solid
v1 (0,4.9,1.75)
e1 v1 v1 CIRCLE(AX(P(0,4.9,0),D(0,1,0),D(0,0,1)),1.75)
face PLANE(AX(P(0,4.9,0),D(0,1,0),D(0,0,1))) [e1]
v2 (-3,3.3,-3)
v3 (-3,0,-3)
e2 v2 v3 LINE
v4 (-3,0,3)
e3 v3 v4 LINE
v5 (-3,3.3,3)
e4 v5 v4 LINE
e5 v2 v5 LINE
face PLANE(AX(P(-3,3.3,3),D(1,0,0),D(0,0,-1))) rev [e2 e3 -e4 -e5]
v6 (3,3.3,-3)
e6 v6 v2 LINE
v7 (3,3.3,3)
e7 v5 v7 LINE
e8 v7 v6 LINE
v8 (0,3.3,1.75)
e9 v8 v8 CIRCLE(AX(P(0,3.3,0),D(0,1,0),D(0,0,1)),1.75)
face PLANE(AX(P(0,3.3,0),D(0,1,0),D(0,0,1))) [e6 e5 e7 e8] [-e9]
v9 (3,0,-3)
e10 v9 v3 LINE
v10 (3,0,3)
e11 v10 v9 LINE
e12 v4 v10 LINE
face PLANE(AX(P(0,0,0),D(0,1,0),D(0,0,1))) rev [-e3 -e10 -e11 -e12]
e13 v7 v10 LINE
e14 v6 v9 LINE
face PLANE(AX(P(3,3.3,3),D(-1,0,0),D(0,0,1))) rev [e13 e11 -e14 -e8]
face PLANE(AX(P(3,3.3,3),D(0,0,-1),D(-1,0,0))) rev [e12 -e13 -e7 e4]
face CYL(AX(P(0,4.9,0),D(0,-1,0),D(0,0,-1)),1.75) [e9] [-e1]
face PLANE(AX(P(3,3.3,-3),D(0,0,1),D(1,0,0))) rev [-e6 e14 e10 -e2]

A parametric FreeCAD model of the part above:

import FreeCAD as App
import Part
import Sketcher
from FreeCAD import Vector
Q = App.Units.Quantity

doc = App.newDocument("Part")
body = doc.addObject("PartDesign::Body", "Body")

# Sketch on XZ plane
sketch1 = body.newObject("Sketcher::SketchObject", "Sketch")
sketch1.AttachmentSupport = (doc.getObject("XZ_Plane"), [""])
sketch1.MapMode = "FlatFace"
sketch1.addGeometry([
    Part.LineSegment(Vector(-3, -3, 0), Vector(-3, 3, 0)),
    Part.LineSegment(Vector(-3, 3, 0), Vector(3, 3, 0)),
    Part.LineSegment(Vector(3, 3, 0), Vector(3, -3, 0)),
    Part.LineSegment(Vector(3, -3, 0), Vector(-3, -3, 0)),
], False)
sketch1.addConstraint([
    Sketcher.Constraint("Coincident", 0, 2, 1, 1),
    Sketcher.Constraint("Coincident", 1, 2, 2, 1),
    Sketcher.Constraint("Coincident", 2, 2, 3, 1),
    Sketcher.Constraint("Coincident", 3, 2, 0, 1),
    Sketcher.Constraint("Vertical", 0),
    Sketcher.Constraint("Horizontal", 1),
    Sketcher.Constraint("Vertical", 2),
    Sketcher.Constraint("Horizontal", 3),
    Sketcher.Constraint("Symmetric", 0, 2, 2, 2, -1, 1),
    Sketcher.Constraint("Equal", 3, 0),
    Sketcher.Constraint("DistanceX", 1, 1, 1, 2, Q("6 mm")),
])
pad1 = body.newObject("PartDesign::Pad", "Pad")
pad1.Profile = sketch1
pad1.Length = 3.3
pad1.Reversed = True

# Sketch on XZ plane
sketch2 = body.newObject("Sketcher::SketchObject", "Sketch001")
sketch2.AttachmentSupport = (doc.getObject("XZ_Plane"), [""])
sketch2.MapMode = "FlatFace"
sketch2.AttachmentOffset = App.Placement(Vector(0, 0, -3.3), App.Rotation())
sketch2.addGeometry(Part.Circle(Vector(0, 0, 0), Vector(0, 0, 1), 1.8), False)
sketch2.addConstraint([
    Sketcher.Constraint("Coincident", 0, 3, -1, 1),
    Sketcher.Constraint("Diameter", 0, Q("3.5 mm")),
])
pad2 = body.newObject("PartDesign::Pad", "Pad001")
pad2.Profile = sketch2
pad2.Length = 1.6
pad2.Reversed = True

doc.recompute()
